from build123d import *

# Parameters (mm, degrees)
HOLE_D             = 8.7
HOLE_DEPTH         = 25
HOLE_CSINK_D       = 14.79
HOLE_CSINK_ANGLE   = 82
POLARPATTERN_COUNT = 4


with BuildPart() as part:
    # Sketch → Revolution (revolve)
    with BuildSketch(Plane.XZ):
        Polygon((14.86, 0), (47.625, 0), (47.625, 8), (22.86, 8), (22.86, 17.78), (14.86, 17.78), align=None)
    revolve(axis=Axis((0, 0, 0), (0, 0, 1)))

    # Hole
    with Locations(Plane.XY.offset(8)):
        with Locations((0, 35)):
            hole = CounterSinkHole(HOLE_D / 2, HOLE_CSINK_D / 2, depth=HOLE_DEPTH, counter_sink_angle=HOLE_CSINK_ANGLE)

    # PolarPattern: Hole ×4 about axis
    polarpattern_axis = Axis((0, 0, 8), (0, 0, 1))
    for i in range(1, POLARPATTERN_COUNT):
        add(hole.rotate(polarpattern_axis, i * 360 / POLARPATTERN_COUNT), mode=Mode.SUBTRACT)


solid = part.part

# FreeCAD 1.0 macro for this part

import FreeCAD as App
import Part
import Sketcher

V = App.Vector
Q = App.Units.Quantity


def add_polygon(sketch, points):
    """Adds a closed chain of lines whose ends are joined by coincident constraints."""
    first, n = sketch.GeometryCount, len(points)
    for a, b in zip(points, points[1:] + points[:1]):
        sketch.addGeometry(Part.LineSegment(App.Vector(*a, 0), App.Vector(*b, 0)), False)
    for i in range(n):
        sketch.addConstraint(Sketcher.Constraint("Coincident", first + i, 2, first + (i + 1) % n, 1))

doc = App.newDocument("Part")
body = doc.addObject("PartDesign::Body", "Body")

sketch1 = body.newObject("Sketcher::SketchObject", "Sketch")
sketch1.AttachmentSupport = (doc.getObject("XZ_Plane"), [""])
sketch1.MapMode = "FlatFace"
add_polygon(sketch1, [(15, 0), (48, 0), (48, 8), (23, 8), (23, 18), (15, 18)])
sketch1.addConstraint(Sketcher.Constraint("Horizontal", 0))
sketch1.addConstraint(Sketcher.Constraint("Vertical", 1))
sketch1.addConstraint(Sketcher.Constraint("Horizontal", 2))
sketch1.addConstraint(Sketcher.Constraint("Vertical", 3))
sketch1.addConstraint(Sketcher.Constraint("Horizontal", 4))
sketch1.addConstraint(Sketcher.Constraint("Vertical", 5))
sketch1.addConstraint(Sketcher.Constraint("PointOnObject", 0, 2, -1))
sketch1.addConstraint(Sketcher.Constraint("Equal", 4, 1))
sketch1.addConstraint(Sketcher.Constraint("DistanceX", 4, 2, 4, 1, Q("8 mm")))
sketch1.addConstraint(Sketcher.Constraint("DistanceY", 3, 1, 3, 2, Q("9.78 mm")))
sketch1.addConstraint(Sketcher.Constraint("DistanceX", 0, 1, 0, 2, Q("32.765 mm")))
sketch1.addConstraint(Sketcher.Constraint("DistanceX", -1, 1, 2, 2, Q("22.86 mm")))
revolution = body.newObject("PartDesign::Revolution", "Revolution")
revolution.Profile = sketch1
revolution.ReferenceAxis = (sketch1, ["V_Axis"])
revolution.Angle = 360

sketch2 = body.newObject("Sketcher::SketchObject", "Sketch001")
sketch2.AttachmentSupport = (doc.getObject("XY_Plane"), [""])
sketch2.MapMode = "FlatFace"
sketch2.AttachmentOffset = App.Placement(V(0, 0, 8), App.Rotation())
sketch2.addGeometry(Part.Circle(V(0, 35, 0), V(0, 0, 1), 4.3), False)
sketch2.addConstraint(Sketcher.Constraint("PointOnObject", 0, 3, -2))
sketch2.addConstraint(Sketcher.Constraint("Diameter", 0, Q("8.7 mm")))
sketch2.addConstraint(Sketcher.Constraint("DistanceY", -1, 1, 0, 3, Q("35 mm")))
doc.recompute()
hole = body.newObject("PartDesign::Hole", "Hole")
hole.Profile = sketch2
hole.ThreadType = "None"
hole.Diameter = 8.7
hole.DepthType = "Dimension"
hole.Depth = 25
hole.DrillPoint = "Flat"
hole.HoleCutType = "Countersink"
hole.HoleCutDiameter = 14.79
hole.HoleCutCountersinkAngle = 82
doc.recompute()

polarpattern = body.newObject("PartDesign::PolarPattern", "PolarPattern")
polarpattern.Originals = [hole]
polarpattern.Axis = (doc.getObject("Z_Axis"), [""])
polarpattern.Angle = 360
polarpattern.Occurrences = 4
body.Tip = polarpattern

doc.recompute()
